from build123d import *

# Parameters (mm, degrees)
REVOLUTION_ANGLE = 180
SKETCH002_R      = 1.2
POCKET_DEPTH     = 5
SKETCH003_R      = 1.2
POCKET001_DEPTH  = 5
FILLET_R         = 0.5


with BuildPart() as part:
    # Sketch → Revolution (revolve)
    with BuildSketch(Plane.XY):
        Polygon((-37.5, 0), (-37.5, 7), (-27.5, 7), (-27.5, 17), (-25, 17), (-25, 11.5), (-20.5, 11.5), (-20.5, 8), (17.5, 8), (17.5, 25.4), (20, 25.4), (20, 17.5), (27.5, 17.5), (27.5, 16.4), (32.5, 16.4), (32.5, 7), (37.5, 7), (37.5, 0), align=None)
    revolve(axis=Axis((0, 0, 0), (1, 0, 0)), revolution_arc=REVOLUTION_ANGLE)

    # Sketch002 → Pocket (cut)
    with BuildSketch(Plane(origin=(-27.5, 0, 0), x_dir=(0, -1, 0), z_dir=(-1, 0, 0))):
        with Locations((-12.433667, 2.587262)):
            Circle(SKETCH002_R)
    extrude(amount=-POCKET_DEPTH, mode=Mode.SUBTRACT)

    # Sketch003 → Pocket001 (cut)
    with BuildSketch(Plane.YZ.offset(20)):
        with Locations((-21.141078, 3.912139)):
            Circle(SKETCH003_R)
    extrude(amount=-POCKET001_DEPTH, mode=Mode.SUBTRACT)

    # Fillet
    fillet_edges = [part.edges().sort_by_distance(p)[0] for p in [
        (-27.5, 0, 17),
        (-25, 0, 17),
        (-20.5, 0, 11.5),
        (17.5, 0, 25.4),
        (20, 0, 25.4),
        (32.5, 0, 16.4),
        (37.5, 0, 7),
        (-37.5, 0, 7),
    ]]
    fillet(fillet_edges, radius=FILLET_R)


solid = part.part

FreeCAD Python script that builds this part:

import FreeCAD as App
import Part
import Sketcher
from FreeCAD import Vector
Q = App.Units.Quantity


def edges_at(feature, points):
    """Names of the edges that pass closest to the given points."""
    edges = feature.Shape.Edges
    near = lambda p: min(range(len(edges)), key=lambda i: edges[i].distToShape(Part.Vertex(*p))[0])
    return sorted({f"Edge{near(p) + 1}" for p in points})


def add_polygon(sketch, points):
    """Adds a closed chain of lines whose ends are joined by coincident constraints."""
    first, n = sketch.GeometryCount, len(points)
    for a, b in zip(points, points[1:] + points[:1]):
        sketch.addGeometry(Part.LineSegment(App.Vector(*a, 0), App.Vector(*b, 0)), False)
    for i in range(n):
        sketch.addConstraint(Sketcher.Constraint("Coincident", first + i, 2, first + (i + 1) % n, 1))

doc = App.newDocument("Part")
body = doc.addObject("PartDesign::Body", "Body")

sketch1 = doc.addObject("Sketcher::SketchObject", "Sketch")
body.addObject(sketch1)
sketch1.AttachmentSupport = (doc.XY_Plane, [""])
sketch1.MapMode = "FlatFace"
add_polygon(sketch1, [(-37.5, 7), (-37.5, 0), (37.5, 0), (37.5, 7), (32.5, 7), (32.5, 16.4), (27.5, 16.4), (27.5, 17.5), (20, 17.5), (20, 25.4), (17.5, 25.4), (17.5, 8), (-20.5, 8), (-20.5, 11.5), (-25, 11.5), (-25, 17), (-27.5, 17), (-27.5, 7)])
sketch1.addConstraint(Sketcher.Constraint("Vertical", 0))
sketch1.addConstraint(Sketcher.Constraint("Horizontal", 1))
sketch1.addConstraint(Sketcher.Constraint("Vertical", 2))
sketch1.addConstraint(Sketcher.Constraint("Horizontal", 3))
sketch1.addConstraint(Sketcher.Constraint("Vertical", 4))
sketch1.addConstraint(Sketcher.Constraint("Horizontal", 5))
sketch1.addConstraint(Sketcher.Constraint("Vertical", 6))
sketch1.addConstraint(Sketcher.Constraint("Horizontal", 7))
sketch1.addConstraint(Sketcher.Constraint("Vertical", 8))
sketch1.addConstraint(Sketcher.Constraint("Horizontal", 9))
sketch1.addConstraint(Sketcher.Constraint("Vertical", 10))
sketch1.addConstraint(Sketcher.Constraint("Horizontal", 11))
sketch1.addConstraint(Sketcher.Constraint("Vertical", 12))
sketch1.addConstraint(Sketcher.Constraint("Horizontal", 13))
sketch1.addConstraint(Sketcher.Constraint("Vertical", 14))
sketch1.addConstraint(Sketcher.Constraint("Horizontal", 15))
sketch1.addConstraint(Sketcher.Constraint("Vertical", 16))
sketch1.addConstraint(Sketcher.Constraint("Horizontal", 17))
sketch1.addConstraint(Sketcher.Constraint("Symmetric", 0, 2, 1, 2, -1, 1))
sketch1.addConstraint(Sketcher.Constraint("Horizontal", 3, 2, 16, 2))
sketch1.addConstraint(Sketcher.Constraint("Equal", 3, 5))
sketch1.addConstraint(Sketcher.Constraint("Equal", 9, 15))
sketch1.addConstraint(Sketcher.Constraint("Equal", 17, 16))
sketch1.addConstraint(Sketcher.Constraint("DistanceX", 1, 1, 1, 2, Q("75 mm")))
sketch1.addConstraint(Sketcher.Constraint("DistanceX", 3, 2, 3, 1, Q("5 mm")))
sketch1.addConstraint(Sketcher.Constraint("DistanceX", 11, 2, 11, 1, Q("38 mm")))
sketch1.addConstraint(Sketcher.Constraint("DistanceX", 17, 2, 17, 1, Q("10 mm")))
sketch1.addConstraint(Sketcher.Constraint("DistanceY", 0, 2, 0, 1, Q("7 mm")))
sketch1.addConstraint(Sketcher.Constraint("DistanceX", 7, 2, 7, 1, Q("7.5 mm")))
sketch1.addConstraint(Sketcher.Constraint("DistanceX", 9, 2, 9, 1, Q("2.5 mm")))
sketch1.addConstraint(Sketcher.Constraint("DistanceY", 4, 1, 4, 2, Q("9.4 mm")))
sketch1.addConstraint(Sketcher.Constraint("DistanceY", 6, 1, 6, 2, Q("1.1 mm")))
sketch1.addConstraint(Sketcher.Constraint("DistanceY", 8, 1, 8, 2, Q("7.9 mm")))
sketch1.addConstraint(Sketcher.Constraint("DistanceY", 10, 2, 10, 1, Q("17.4 mm")))
sketch1.addConstraint(Sketcher.Constraint("DistanceY", 12, 1, 12, 2, Q("3.5 mm")))
revolution = doc.addObject("PartDesign::Revolution", "Revolution")
body.addObject(revolution)
revolution.Profile = sketch1
revolution.ReferenceAxis = (sketch1, ["H_Axis"])
revolution.Angle = 180

sketch2 = doc.addObject("Sketcher::SketchObject", "Sketch001")
body.addObject(sketch2)
sketch2.AttachmentSupport = (doc.YZ_Plane, [""])
sketch2.MapMode = "FlatFace"
sketch2.AttachmentOffset = App.Placement(Vector(0, 0, -27.5), App.Rotation())
sketch2.addGeometry(Part.Circle(Vector(12.4, 2.6, 0), Vector(0, 0, 1), 1.2), False)
sketch2.addConstraint(Sketcher.Constraint("Diameter", 0, Q("2.4 mm")))
sketch2.addConstraint(Sketcher.Constraint("DistanceY", -1, 1, 0, 3, Q("2.587262 mm")))
sketch2.addConstraint(Sketcher.Constraint("DistanceX", -1, 1, 0, 3, Q("12.433667 mm")))
pocket1 = doc.addObject("PartDesign::Pocket", "Pocket")
body.addObject(pocket1)
pocket1.Profile = sketch2
pocket1.Length = 5
pocket1.Reversed = True

sketch3 = doc.addObject("Sketcher::SketchObject", "Sketch002")
body.addObject(sketch3)
sketch3.AttachmentSupport = (doc.YZ_Plane, [""])
sketch3.MapMode = "FlatFace"
sketch3.AttachmentOffset = App.Placement(Vector(0, 0, 20), App.Rotation())
sketch3.addGeometry(Part.Circle(Vector(-21.1, 3.9, 0), Vector(0, 0, 1), 1.2), False)
sketch3.addConstraint(Sketcher.Constraint("Diameter", 0, Q("2.4 mm")))
sketch3.addConstraint(Sketcher.Constraint("DistanceX", 0, 3, -1, 1, Q("21.141078 mm")))
sketch3.addConstraint(Sketcher.Constraint("DistanceY", -1, 1, 0, 3, Q("3.912139 mm")))
pocket2 = doc.addObject("PartDesign::Pocket", "Pocket001")
body.addObject(pocket2)
pocket2.Profile = sketch3
pocket2.Length = 5
doc.recompute()

fillet = doc.addObject("PartDesign::Fillet", "Fillet")
body.addObject(fillet)
fillet.Base = (pocket2, edges_at(pocket2, [
    (-27.5, 0, 17),
    (-25, 0, 17),
    (-20.5, 0, 11.5),
    (17.5, 0, 25.4),
    (20, 0, 25.4),
    (32.5, 0, 16.4),
    (37.5, 0, 7),
    (-37.5, 0, 7),
]))
fillet.Radius = 0.5

doc.recompute()
